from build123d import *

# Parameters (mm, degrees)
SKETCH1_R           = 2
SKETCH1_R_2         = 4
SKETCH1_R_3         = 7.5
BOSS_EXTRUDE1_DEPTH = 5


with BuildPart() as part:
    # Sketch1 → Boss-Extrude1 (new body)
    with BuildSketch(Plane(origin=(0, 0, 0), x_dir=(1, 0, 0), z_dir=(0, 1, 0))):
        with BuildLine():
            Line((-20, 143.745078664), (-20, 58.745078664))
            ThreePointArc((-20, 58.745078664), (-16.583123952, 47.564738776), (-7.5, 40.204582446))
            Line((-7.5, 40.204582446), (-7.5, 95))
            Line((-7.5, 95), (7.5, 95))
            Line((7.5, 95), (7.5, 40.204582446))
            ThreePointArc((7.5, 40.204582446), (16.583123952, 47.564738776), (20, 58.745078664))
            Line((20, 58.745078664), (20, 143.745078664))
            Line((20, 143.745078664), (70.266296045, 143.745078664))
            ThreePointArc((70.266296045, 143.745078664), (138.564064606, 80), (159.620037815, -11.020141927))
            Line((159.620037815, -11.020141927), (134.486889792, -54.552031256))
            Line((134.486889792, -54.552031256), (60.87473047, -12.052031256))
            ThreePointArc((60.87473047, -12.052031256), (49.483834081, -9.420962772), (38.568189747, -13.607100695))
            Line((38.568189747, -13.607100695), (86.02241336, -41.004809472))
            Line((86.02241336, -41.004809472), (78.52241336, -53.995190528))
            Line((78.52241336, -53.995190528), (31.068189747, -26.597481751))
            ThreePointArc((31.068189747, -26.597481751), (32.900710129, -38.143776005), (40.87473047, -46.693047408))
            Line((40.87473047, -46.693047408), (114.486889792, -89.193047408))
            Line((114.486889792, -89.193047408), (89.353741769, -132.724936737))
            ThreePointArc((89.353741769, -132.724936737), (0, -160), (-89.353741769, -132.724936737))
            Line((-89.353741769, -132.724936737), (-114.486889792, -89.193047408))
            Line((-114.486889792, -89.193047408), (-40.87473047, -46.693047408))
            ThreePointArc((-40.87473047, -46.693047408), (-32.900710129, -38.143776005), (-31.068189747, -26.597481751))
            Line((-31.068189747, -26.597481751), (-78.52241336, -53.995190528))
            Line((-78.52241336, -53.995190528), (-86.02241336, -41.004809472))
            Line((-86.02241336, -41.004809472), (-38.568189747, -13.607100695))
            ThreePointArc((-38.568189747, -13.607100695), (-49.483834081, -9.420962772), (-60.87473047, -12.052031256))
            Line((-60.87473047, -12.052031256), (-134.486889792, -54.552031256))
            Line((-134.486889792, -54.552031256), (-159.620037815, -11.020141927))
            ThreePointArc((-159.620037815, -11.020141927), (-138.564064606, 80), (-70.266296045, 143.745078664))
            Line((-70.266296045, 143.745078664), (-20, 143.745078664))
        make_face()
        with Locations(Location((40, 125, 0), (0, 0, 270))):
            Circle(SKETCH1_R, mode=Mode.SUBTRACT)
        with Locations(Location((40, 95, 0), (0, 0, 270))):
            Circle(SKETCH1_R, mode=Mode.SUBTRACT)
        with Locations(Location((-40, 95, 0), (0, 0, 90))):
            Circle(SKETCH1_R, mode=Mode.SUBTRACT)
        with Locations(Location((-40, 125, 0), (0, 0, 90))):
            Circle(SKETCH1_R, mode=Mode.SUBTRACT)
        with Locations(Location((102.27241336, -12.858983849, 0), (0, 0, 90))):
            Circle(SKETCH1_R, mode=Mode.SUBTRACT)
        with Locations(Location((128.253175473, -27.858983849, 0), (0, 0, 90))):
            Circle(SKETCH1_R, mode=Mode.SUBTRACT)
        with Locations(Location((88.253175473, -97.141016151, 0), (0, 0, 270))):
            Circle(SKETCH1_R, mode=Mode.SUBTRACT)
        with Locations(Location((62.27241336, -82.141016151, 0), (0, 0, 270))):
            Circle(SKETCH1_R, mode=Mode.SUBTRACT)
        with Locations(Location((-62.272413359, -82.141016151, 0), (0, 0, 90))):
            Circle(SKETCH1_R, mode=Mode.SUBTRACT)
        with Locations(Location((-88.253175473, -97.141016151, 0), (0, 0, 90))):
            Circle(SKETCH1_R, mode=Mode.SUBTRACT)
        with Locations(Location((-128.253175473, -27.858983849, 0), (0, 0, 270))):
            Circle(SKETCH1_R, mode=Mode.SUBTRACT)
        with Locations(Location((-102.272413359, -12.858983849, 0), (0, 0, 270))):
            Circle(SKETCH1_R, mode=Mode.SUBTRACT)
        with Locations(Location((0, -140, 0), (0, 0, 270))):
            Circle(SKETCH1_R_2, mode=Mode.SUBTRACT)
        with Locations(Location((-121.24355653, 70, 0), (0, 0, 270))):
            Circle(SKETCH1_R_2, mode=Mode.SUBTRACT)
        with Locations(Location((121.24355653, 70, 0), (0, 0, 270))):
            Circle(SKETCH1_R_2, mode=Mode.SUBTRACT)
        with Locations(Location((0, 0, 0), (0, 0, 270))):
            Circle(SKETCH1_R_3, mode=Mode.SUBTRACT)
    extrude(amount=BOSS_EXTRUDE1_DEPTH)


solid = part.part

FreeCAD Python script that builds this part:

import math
import FreeCAD as App
import Part
import Sketcher
Q = App.Units.Quantity

doc = App.newDocument("Part")
body = doc.addObject("PartDesign::Body", "Body")

# Sketch on XZ plane
sketch1 = body.newObject("Sketcher::SketchObject", "Sketch")
sketch1.AttachmentSupport = (doc.getObject("XZ_Plane"), [""])
sketch1.MapMode = "FlatFace"
sketch1.addGeometry(Part.LineSegment(App.Vector(-20, -58.7, 0), App.Vector(-20, -143.7, 0)), False)
sketch1.addGeometry(Part.LineSegment(App.Vector(-20, -143.7, 0), App.Vector(-70.3, -143.7, 0)), False)
sketch1.addGeometry(Part.ArcOfCircle(Part.Circle(App.Vector(0, 0, 0), App.Vector(0, 0, 1), 160), math.radians(176), math.radians(244)), False)
sketch1.addGeometry(Part.LineSegment(App.Vector(-159.6, 11, 0), App.Vector(-134.5, 54.6, 0)), False)
sketch1.addGeometry(Part.LineSegment(App.Vector(-134.5, 54.6, 0), App.Vector(-60.9, 12.1, 0)), False)
sketch1.addGeometry(Part.ArcOfCircle(Part.Circle(App.Vector(-50.9, 29.4, 0), App.Vector(0, 0, 1), 20), math.radians(-120), math.radians(-52)), False)
sketch1.addGeometry(Part.LineSegment(App.Vector(-38.6, 13.6, 0), App.Vector(-86, 41, 0)), False)
sketch1.addGeometry(Part.LineSegment(App.Vector(-86, 41, 0), App.Vector(-78.5, 54, 0)), False)
sketch1.addGeometry(Part.LineSegment(App.Vector(-78.5, 54, 0), App.Vector(-31.1, 26.6, 0)), False)
sketch1.addGeometry(Part.ArcOfCircle(Part.Circle(App.Vector(-50.9, 29.4, 0), App.Vector(0, 0, 1), 20), math.radians(-8), math.radians(60)), False)
sketch1.addGeometry(Part.LineSegment(App.Vector(-40.9, 46.7, 0), App.Vector(-114.5, 89.2, 0)), False)
sketch1.addGeometry(Part.LineSegment(App.Vector(-114.5, 89.2, 0), App.Vector(-89.4, 132.7, 0)), False)
sketch1.addGeometry(Part.ArcOfCircle(Part.Circle(App.Vector(0, 0, 0), App.Vector(0, 0, 1), 160), math.radians(56), math.radians(124)), False)
sketch1.addGeometry(Part.LineSegment(App.Vector(89.4, 132.7, 0), App.Vector(114.5, 89.2, 0)), False)
sketch1.addGeometry(Part.LineSegment(App.Vector(114.5, 89.2, 0), App.Vector(40.9, 46.7, 0)), False)
sketch1.addGeometry(Part.ArcOfCircle(Part.Circle(App.Vector(50.9, 29.4, 0), App.Vector(0, 0, 1), 20), math.radians(120), math.radians(188)), False)
sketch1.addGeometry(Part.LineSegment(App.Vector(31.1, 26.6, 0), App.Vector(78.5, 54, 0)), False)
sketch1.addGeometry(Part.LineSegment(App.Vector(78.5, 54, 0), App.Vector(86, 41, 0)), False)
sketch1.addGeometry(Part.LineSegment(App.Vector(86, 41, 0), App.Vector(38.6, 13.6, 0)), False)
sketch1.addGeometry(Part.ArcOfCircle(Part.Circle(App.Vector(50.9, 29.4, 0), App.Vector(0, 0, 1), 20), math.radians(-128), math.radians(-60)), False)
sketch1.addGeometry(Part.LineSegment(App.Vector(60.9, 12.1, 0), App.Vector(134.5, 54.6, 0)), False)
sketch1.addGeometry(Part.LineSegment(App.Vector(134.5, 54.6, 0), App.Vector(159.6, 11, 0)), False)
sketch1.addGeometry(Part.ArcOfCircle(Part.Circle(App.Vector(0, 0, 0), App.Vector(0, 0, 1), 160), math.radians(-64), math.radians(4)), False)
sketch1.addGeometry(Part.LineSegment(App.Vector(70.3, -143.7, 0), App.Vector(20, -143.7, 0)), False)
sketch1.addGeometry(Part.LineSegment(App.Vector(20, -143.7, 0), App.Vector(20, -58.7, 0)), False)
sketch1.addGeometry(Part.ArcOfCircle(Part.Circle(App.Vector(0, -58.7, 0), App.Vector(0, 0, 1), 20), math.radians(0), math.radians(68)), False)
sketch1.addGeometry(Part.LineSegment(App.Vector(7.5, -40.2, 0), App.Vector(7.5, -95, 0)), False)
sketch1.addGeometry(Part.LineSegment(App.Vector(7.5, -95, 0), App.Vector(-7.5, -95, 0)), False)
sketch1.addGeometry(Part.LineSegment(App.Vector(-7.5, -95, 0), App.Vector(-7.5, -40.2, 0)), False)
sketch1.addGeometry(Part.ArcOfCircle(Part.Circle(App.Vector(0, -58.7, 0), App.Vector(0, 0, 1), 20), math.radians(112), math.radians(180)), False)
sketch1.addGeometry(Part.Circle(App.Vector(88.3, 97.1, 0), App.Vector(0, 0, 1), 2), False)
sketch1.addGeometry(Part.Circle(App.Vector(62.3, 82.1, 0), App.Vector(0, 0, 1), 2), False)
sketch1.addGeometry(Part.Circle(App.Vector(128.3, 27.9, 0), App.Vector(0, 0, 1), 2), False)
sketch1.addGeometry(Part.Circle(App.Vector(102.3, 12.9, 0), App.Vector(0, 0, 1), 2), False)
sketch1.addGeometry(Part.Circle(App.Vector(0, 140, 0), App.Vector(0, 0, 1), 4), False)
sketch1.addGeometry(Part.Circle(App.Vector(-62.3, 82.1, 0), App.Vector(0, 0, 1), 2), False)
sketch1.addGeometry(Part.Circle(App.Vector(-88.3, 97.1, 0), App.Vector(0, 0, 1), 2), False)
sketch1.addGeometry(Part.Circle(App.Vector(-128.3, 27.9, 0), App.Vector(0, 0, 1), 2), False)
sketch1.addGeometry(Part.Circle(App.Vector(-102.3, 12.9, 0), App.Vector(0, 0, 1), 2), False)
sketch1.addGeometry(Part.Circle(App.Vector(121.2, -70, 0), App.Vector(0, 0, 1), 4), False)
sketch1.addGeometry(Part.Circle(App.Vector(40, -95, 0), App.Vector(0, 0, 1), 2), False)
sketch1.addGeometry(Part.Circle(App.Vector(40, -125, 0), App.Vector(0, 0, 1), 2), False)
sketch1.addGeometry(Part.Circle(App.Vector(0, 0, 0), App.Vector(0, 0, 1), 7.5), False)
sketch1.addGeometry(Part.Circle(App.Vector(-40, -95, 0), App.Vector(0, 0, 1), 2), False)
sketch1.addGeometry(Part.Circle(App.Vector(-40, -125, 0), App.Vector(0, 0, 1), 2), False)
sketch1.addGeometry(Part.Circle(App.Vector(-121.2, -70, 0), App.Vector(0, 0, 1), 4), False)
sketch1.addConstraint(Sketcher.Constraint("Coincident", 0, 2, 1, 1))
sketch1.addConstraint(Sketcher.Constraint("Coincident", 1, 2, 2, 2))
sketch1.addConstraint(Sketcher.Constraint("Coincident", 2, 1, 3, 1))
sketch1.addConstraint(Sketcher.Constraint("Coincident", 3, 2, 4, 1))
sketch1.addConstraint(Sketcher.Constraint("Tangent", 4, 2, 5, 1))
sketch1.addConstraint(Sketcher.Constraint("Coincident", 5, 2, 6, 1))
sketch1.addConstraint(Sketcher.Constraint("Coincident", 6, 2, 7, 1))
sketch1.addConstraint(Sketcher.Constraint("Coincident", 7, 2, 8, 1))
sketch1.addConstraint(Sketcher.Constraint("Coincident", 8, 2, 9, 1))
sketch1.addConstraint(Sketcher.Constraint("Tangent", 9, 2, 10, 1))
sketch1.addConstraint(Sketcher.Constraint("Coincident", 10, 2, 11, 1))
sketch1.addConstraint(Sketcher.Constraint("Coincident", 11, 2, 12, 2))
sketch1.addConstraint(Sketcher.Constraint("Coincident", 12, 1, 13, 1))
sketch1.addConstraint(Sketcher.Constraint("Coincident", 13, 2, 14, 1))
sketch1.addConstraint(Sketcher.Constraint("Tangent", 14, 2, 15, 1))
sketch1.addConstraint(Sketcher.Constraint("Coincident", 15, 2, 16, 1))
sketch1.addConstraint(Sketcher.Constraint("Coincident", 16, 2, 17, 1))
sketch1.addConstraint(Sketcher.Constraint("Coincident", 17, 2, 18, 1))
sketch1.addConstraint(Sketcher.Constraint("Coincident", 18, 2, 19, 1))
sketch1.addConstraint(Sketcher.Constraint("Tangent", 19, 2, 20, 1))
sketch1.addConstraint(Sketcher.Constraint("Coincident", 20, 2, 21, 1))
sketch1.addConstraint(Sketcher.Constraint("Coincident", 21, 2, 22, 2))
sketch1.addConstraint(Sketcher.Constraint("Coincident", 22, 1, 23, 1))
sketch1.addConstraint(Sketcher.Constraint("Coincident", 23, 2, 24, 1))
sketch1.addConstraint(Sketcher.Constraint("Tangent", 24, 2, 25, 1))
sketch1.addConstraint(Sketcher.Constraint("Coincident", 25, 2, 26, 1))
sketch1.addConstraint(Sketcher.Constraint("Coincident", 26, 2, 27, 1))
sketch1.addConstraint(Sketcher.Constraint("Coincident", 27, 2, 28, 1))
sketch1.addConstraint(Sketcher.Constraint("Coincident", 28, 2, 29, 1))
sketch1.addConstraint(Sketcher.Constraint("Tangent", 29, 2, 0, 1))
sketch1.addConstraint(Sketcher.Constraint("Vertical", 0))
sketch1.addConstraint(Sketcher.Constraint("Horizontal", 1))
sketch1.addConstraint(Sketcher.Constraint("Horizontal", 23))
sketch1.addConstraint(Sketcher.Constraint("Vertical", 24))
sketch1.addConstraint(Sketcher.Constraint("Vertical", 26))
sketch1.addConstraint(Sketcher.Constraint("Horizontal", 27))
sketch1.addConstraint(Sketcher.Constraint("Vertical", 28))
sketch1.addConstraint(Sketcher.Constraint("Coincident", 2, 3, -1, 1))
sketch1.addConstraint(Sketcher.Constraint("Coincident", 12, 3, -1, 1))
sketch1.addConstraint(Sketcher.Constraint("Coincident", 22, 3, -1, 1))
sketch1.addConstraint(Sketcher.Constraint("Coincident", 42, 3, -1, 1))
sketch1.addConstraint(Sketcher.Constraint("Coincident", 9, 3, 5, 3))
sketch1.addConstraint(Sketcher.Constraint("Coincident", 19, 3, 15, 3))
sketch1.addConstraint(Sketcher.Constraint("Coincident", 29, 3, 25, 3))
sketch1.addConstraint(Sketcher.Constraint("Equal", 5, 9))
sketch1.addConstraint(Sketcher.Constraint("Equal", 2, 12))
sketch1.addConstraint(Sketcher.Constraint("Equal", 9, 15))
sketch1.addConstraint(Sketcher.Constraint("Equal", 15, 19))
sketch1.addConstraint(Sketcher.Constraint("Equal", 12, 22))
sketch1.addConstraint(Sketcher.Constraint("Equal", 19, 25))
sketch1.addConstraint(Sketcher.Constraint("Equal", 25, 29))
sketch1.addConstraint(Sketcher.Constraint("Equal", 30, 31))
sketch1.addConstraint(Sketcher.Constraint("Equal", 31, 32))
sketch1.addConstraint(Sketcher.Constraint("Equal", 32, 33))
sketch1.addConstraint(Sketcher.Constraint("Equal", 33, 35))
sketch1.addConstraint(Sketcher.Constraint("Equal", 35, 36))
sketch1.addConstraint(Sketcher.Constraint("Equal", 36, 37))
sketch1.addConstraint(Sketcher.Constraint("Equal", 37, 38))
sketch1.addConstraint(Sketcher.Constraint("Equal", 34, 39))
sketch1.addConstraint(Sketcher.Constraint("Equal", 38, 40))
sketch1.addConstraint(Sketcher.Constraint("Equal", 40, 41))
sketch1.addConstraint(Sketcher.Constraint("Equal", 41, 43))
sketch1.addConstraint(Sketcher.Constraint("Equal", 43, 44))
sketch1.addConstraint(Sketcher.Constraint("Equal", 39, 45))
sketch1.addConstraint(Sketcher.Constraint("Symmetric", 5, 3, 15, 3, -2))
sketch1.addConstraint(Sketcher.Constraint("Symmetric", 31, 3, 35, 3, -2))
sketch1.addConstraint(Sketcher.Constraint("Symmetric", 30, 3, 36, 3, -2))
sketch1.addConstraint(Sketcher.Constraint("Symmetric", 32, 3, 37, 3, -2))
sketch1.addConstraint(Sketcher.Constraint("Symmetric", 33, 3, 38, 3, -2))
sketch1.addConstraint(Sketcher.Constraint("Symmetric", 40, 3, 43, 3, -2))
sketch1.addConstraint(Sketcher.Constraint("Symmetric", 41, 3, 44, 3, -2))
sketch1.addConstraint(Sketcher.Constraint("Symmetric", 39, 3, 45, 3, -2))
sketch1.addConstraint(Sketcher.Constraint("Symmetric", 10, 2, 13, 2, -2))
sketch1.addConstraint(Sketcher.Constraint("Symmetric", 7, 2, 16, 2, -2))
sketch1.addConstraint(Sketcher.Constraint("Symmetric", 6, 2, 17, 2, -2))
sketch1.addConstraint(Sketcher.Constraint("Symmetric", 3, 2, 20, 2, -2))
sketch1.addConstraint(Sketcher.Constraint("Symmetric", 0, 2, 23, 2, -2))
sketch1.addConstraint(Sketcher.Constraint("PointOnObject", 34, 3, -2))
sketch1.addConstraint(Sketcher.Constraint("Perpendicular", 3, 4))
sketch1.addConstraint(Sketcher.Constraint("Parallel", 4, 6))
sketch1.addConstraint(Sketcher.Constraint("Perpendicular", 6, 7))
sketch1.addConstraint(Sketcher.Constraint("Perpendicular", 7, 8))
sketch1.addConstraint(Sketcher.Constraint("Parallel", 8, 10))
sketch1.addConstraint(Sketcher.Constraint("Perpendicular", 10, 11))
sketch1.addConstraint(Sketcher.Constraint("Perpendicular", 13, 14))
sketch1.addConstraint(Sketcher.Constraint("Parallel", 14, 16))
sketch1.addConstraint(Sketcher.Constraint("Perpendicular", 17, 18))
sketch1.addConstraint(Sketcher.Constraint("Perpendicular", 20, 21))
sketch1.addConstraint(Sketcher.Constraint("Horizontal", 43, 3, 26, 2))
sketch1.addConstraint(Sketcher.Constraint("Horizontal", 25, 2, 28, 2))
sketch1.addConstraint(Sketcher.Constraint("Vertical", 40, 3, 41, 3))
sketch1.addConstraint(Sketcher.Constraint("Equal", 6, 8))
sketch1.addConstraint(Sketcher.Constraint("Equal", 4, 10))
sketch1.addConstraint(Sketcher.Constraint("Equal", 3, 11))
sketch1.addConstraint(Sketcher.Constraint("Diameter", 30, 4.0))
sketch1.addConstraint(Sketcher.Constraint("Diameter", 34, 8.0))
sketch1.addConstraint(Sketcher.Constraint("Diameter", 42, 15.0))
sketch1.addConstraint(Sketcher.Constraint("Radius", 2, 160.0))
sketch1.addConstraint(Sketcher.Constraint("Radius", 5, 20.0))
sketch1.addConstraint(Sketcher.Constraint("DistanceX", 27, 2, 27, 1, 15.0))
sketch1.addConstraint(Sketcher.Constraint("DistanceY", 0, 2, 0, 1, 85.0))
sketch1.addConstraint(Sketcher.Constraint("Angle", 3, Q("60 deg")))
sketch1.addConstraint(Sketcher.Constraint("Distance", 4, 85.0))
sketch1.addConstraint(Sketcher.Constraint("Distance", 7, 15.0))
sketch1.addConstraint(Sketcher.Constraint("DistanceY", -1, 1, 34, 3, 140.0))
sketch1.addConstraint(Sketcher.Constraint("DistanceY", 39, 3, -1, 1, 70.0))
sketch1.addConstraint(Sketcher.Constraint("DistanceX", -1, 1, 40, 3, 40.0))
sketch1.addConstraint(Sketcher.Constraint("DistanceY", 40, 3, -1, 1, 95.0))
sketch1.addConstraint(Sketcher.Constraint("DistanceY", 41, 3, -1, 1, 125.0))
sketch1.addConstraint(Sketcher.Constraint("DistanceY", 31, 3, 30, 3, 15.0))
sketch1.addConstraint(Sketcher.Constraint("DistanceX", 30, 3, 32, 3, 40.0))
sketch1.addConstraint(Sketcher.Constraint("DistanceY", 33, 3, 32, 3, 15.0))
sketch1.addConstraint(Sketcher.Constraint("DistanceX", 31, 3, 33, 3, 40.0))
sketch1.addConstraint(Sketcher.Constraint("DistanceX", 38, 3, 6, 2, 16.25))
sketch1.addConstraint(Sketcher.Constraint("DistanceY", -1, 1, 5, 2, 13.607101))
sketch1.addConstraint(Sketcher.Constraint("DistanceX", 1, 2, 1, 1, 50.266296))
sketch1.addConstraint(Sketcher.Constraint("DistanceY", -1, 1, 6, 2, 41.004809))
sketch1.addConstraint(Sketcher.Constraint("DistanceX", 39, 3, 32, 3, 7.009619))
sketch1.addConstraint(Sketcher.Constraint("DistanceX", 45, 3, 1, 2, 50.97726))
sketch1.addConstraint(Sketcher.Constraint("DistanceY", 2, 1, 37, 3, 16.838842))
sketch1.addConstraint(Sketcher.Constraint("DistanceY", 10, 2, 36, 3, 7.947969))
pad1 = body.newObject("PartDesign::Pad", "Pad")
pad1.Profile = sketch1
pad1.Length = 5
pad1.Reversed = True

doc.recompute()
